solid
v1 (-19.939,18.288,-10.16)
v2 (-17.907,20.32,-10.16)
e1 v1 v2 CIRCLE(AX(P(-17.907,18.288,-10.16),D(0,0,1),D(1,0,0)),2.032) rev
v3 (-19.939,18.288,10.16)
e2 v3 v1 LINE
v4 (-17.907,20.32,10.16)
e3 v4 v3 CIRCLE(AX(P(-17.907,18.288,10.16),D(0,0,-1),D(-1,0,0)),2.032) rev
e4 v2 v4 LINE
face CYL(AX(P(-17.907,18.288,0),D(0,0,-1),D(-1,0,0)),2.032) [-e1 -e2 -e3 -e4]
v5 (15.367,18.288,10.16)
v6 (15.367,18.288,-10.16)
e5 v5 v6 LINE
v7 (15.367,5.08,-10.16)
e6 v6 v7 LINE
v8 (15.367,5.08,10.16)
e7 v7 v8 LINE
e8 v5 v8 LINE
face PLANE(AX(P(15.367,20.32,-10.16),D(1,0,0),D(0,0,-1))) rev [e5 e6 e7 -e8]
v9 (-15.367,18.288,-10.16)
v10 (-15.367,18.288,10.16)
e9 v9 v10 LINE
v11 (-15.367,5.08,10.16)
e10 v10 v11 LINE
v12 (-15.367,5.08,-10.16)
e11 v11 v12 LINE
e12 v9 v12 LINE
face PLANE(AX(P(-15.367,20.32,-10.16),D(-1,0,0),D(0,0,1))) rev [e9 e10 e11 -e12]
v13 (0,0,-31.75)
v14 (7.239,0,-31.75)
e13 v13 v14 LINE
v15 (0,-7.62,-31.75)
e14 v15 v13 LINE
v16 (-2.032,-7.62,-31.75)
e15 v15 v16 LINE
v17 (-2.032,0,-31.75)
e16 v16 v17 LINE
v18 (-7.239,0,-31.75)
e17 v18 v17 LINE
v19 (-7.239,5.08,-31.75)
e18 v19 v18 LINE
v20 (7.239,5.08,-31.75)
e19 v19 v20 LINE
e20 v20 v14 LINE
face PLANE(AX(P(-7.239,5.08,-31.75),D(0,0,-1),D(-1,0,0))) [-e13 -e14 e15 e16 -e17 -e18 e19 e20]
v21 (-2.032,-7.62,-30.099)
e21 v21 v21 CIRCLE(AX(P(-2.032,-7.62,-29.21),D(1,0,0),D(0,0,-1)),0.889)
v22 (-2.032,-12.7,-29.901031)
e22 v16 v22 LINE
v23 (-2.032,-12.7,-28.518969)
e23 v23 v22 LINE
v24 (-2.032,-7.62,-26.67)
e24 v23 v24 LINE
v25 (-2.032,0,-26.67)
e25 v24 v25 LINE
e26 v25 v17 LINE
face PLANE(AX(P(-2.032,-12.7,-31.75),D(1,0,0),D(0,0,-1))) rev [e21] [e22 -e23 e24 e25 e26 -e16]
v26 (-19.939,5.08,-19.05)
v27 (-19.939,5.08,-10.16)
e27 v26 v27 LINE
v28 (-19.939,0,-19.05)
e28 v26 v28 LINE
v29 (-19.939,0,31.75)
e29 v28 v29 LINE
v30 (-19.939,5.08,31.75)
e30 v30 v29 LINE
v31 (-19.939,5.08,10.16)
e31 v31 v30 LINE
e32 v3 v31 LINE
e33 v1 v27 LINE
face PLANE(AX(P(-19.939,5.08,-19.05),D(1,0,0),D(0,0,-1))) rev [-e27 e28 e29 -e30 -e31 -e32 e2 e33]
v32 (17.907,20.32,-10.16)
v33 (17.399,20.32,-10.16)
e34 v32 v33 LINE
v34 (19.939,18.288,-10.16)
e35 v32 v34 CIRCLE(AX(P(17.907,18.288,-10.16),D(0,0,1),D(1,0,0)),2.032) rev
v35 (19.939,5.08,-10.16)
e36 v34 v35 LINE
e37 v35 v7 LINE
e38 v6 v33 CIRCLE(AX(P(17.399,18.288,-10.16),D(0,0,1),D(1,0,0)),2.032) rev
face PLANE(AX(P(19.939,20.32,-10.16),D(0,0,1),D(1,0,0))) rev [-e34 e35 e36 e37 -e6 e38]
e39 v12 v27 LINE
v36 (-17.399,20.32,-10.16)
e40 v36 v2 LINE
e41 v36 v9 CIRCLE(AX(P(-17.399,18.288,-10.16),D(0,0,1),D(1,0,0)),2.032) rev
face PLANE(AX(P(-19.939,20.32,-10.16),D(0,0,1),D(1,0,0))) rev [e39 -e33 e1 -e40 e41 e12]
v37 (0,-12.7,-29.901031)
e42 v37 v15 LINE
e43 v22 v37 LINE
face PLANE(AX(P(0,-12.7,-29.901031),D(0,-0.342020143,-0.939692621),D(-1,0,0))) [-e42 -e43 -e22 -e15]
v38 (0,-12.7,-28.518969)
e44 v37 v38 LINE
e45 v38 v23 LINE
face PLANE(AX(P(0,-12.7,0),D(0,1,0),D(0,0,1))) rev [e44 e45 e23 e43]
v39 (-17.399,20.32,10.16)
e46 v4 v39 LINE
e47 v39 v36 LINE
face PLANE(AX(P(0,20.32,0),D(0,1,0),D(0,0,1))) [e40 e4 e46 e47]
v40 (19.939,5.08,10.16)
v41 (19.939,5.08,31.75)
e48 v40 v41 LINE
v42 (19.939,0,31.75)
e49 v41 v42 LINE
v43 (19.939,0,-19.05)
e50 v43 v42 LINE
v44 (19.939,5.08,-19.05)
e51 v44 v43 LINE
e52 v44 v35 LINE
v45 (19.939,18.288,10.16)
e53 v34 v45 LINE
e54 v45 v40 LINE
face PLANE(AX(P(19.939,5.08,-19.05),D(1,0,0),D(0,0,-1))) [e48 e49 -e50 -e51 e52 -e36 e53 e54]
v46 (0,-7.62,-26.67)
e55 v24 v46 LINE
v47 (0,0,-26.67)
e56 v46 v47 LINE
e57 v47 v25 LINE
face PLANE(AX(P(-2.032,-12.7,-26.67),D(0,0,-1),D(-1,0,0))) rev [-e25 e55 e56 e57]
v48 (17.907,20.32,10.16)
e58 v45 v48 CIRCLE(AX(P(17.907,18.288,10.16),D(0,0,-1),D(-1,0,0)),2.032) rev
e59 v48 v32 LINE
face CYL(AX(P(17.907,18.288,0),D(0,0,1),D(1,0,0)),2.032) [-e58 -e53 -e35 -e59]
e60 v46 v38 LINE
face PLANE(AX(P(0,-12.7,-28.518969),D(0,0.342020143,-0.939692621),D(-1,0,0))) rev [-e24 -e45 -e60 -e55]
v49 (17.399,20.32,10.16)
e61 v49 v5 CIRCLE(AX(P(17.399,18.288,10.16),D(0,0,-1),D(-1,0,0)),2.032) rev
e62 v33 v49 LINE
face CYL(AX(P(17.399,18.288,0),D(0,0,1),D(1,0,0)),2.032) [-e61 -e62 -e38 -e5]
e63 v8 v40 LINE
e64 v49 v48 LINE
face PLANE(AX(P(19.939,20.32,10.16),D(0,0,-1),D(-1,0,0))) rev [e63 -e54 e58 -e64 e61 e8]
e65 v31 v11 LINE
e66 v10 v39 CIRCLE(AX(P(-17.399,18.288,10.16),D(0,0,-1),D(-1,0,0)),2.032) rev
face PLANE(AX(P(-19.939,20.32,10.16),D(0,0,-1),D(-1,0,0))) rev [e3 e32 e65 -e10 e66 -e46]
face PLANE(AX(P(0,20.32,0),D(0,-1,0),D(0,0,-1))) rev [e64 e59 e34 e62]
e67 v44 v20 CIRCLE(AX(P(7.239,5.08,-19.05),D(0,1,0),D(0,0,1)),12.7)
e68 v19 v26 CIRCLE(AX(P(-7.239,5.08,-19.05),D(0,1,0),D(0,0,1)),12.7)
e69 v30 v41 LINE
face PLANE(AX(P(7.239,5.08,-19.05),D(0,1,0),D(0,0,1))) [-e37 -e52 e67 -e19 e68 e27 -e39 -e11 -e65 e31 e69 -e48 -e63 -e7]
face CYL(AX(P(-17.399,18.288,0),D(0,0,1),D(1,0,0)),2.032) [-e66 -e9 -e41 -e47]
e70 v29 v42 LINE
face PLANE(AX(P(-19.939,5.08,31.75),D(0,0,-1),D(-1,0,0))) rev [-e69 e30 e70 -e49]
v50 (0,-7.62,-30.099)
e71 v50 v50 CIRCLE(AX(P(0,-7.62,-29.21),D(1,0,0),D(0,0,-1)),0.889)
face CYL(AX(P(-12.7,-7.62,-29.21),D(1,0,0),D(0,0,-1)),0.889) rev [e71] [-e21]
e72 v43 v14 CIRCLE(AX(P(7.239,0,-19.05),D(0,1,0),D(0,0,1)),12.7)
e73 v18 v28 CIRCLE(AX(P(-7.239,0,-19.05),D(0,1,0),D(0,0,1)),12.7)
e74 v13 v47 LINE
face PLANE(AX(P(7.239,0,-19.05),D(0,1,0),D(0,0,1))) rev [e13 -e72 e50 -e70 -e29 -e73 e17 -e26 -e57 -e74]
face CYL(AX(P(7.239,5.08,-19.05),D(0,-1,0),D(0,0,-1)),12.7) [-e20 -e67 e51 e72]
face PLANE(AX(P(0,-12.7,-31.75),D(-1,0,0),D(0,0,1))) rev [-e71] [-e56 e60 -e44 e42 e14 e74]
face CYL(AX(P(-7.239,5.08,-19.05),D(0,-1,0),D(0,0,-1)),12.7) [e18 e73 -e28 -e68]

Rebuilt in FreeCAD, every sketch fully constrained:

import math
import FreeCAD as App
import Part
import Sketcher
Q = App.Units.Quantity


def edges_at(feature, points):
    """Names of the edges that pass closest to the given points."""
    edges = feature.Shape.Edges
    near = lambda p: min(range(len(edges)), key=lambda i: edges[i].distToShape(Part.Vertex(*p))[0])
    return sorted({f"Edge{near(p) + 1}" for p in points})


def add_polygon(sketch, points):
    """Adds a closed chain of lines whose ends are joined by coincident constraints."""
    first, n = sketch.GeometryCount, len(points)
    for a, b in zip(points, points[1:] + points[:1]):
        sketch.addGeometry(Part.LineSegment(App.Vector(*a, 0), App.Vector(*b, 0)), False)
    for i in range(n):
        sketch.addConstraint(Sketcher.Constraint("Coincident", first + i, 2, first + (i + 1) % n, 1))

doc = App.newDocument("Part")
body = doc.addObject("PartDesign::Body", "Body")

# Sketch on XZ plane
sketch1 = body.newObject("Sketcher::SketchObject", "Sketch")
sketch1.AttachmentSupport = (doc.getObject("XZ_Plane"), [""])
sketch1.MapMode = "FlatFace"
sketch1.addGeometry([
    Part.LineSegment(App.Vector(7, -32, 0), App.Vector(-7, -32, 0)),  # 0
    Part.ArcOfCircle(Part.Circle(App.Vector(-7, -19, 0), App.Vector(0, 0, 1), 13), math.radians(180), math.radians(270)),  # 1
    Part.LineSegment(App.Vector(-20, -19, 0), App.Vector(-20, 32, 0)),  # 2
    Part.LineSegment(App.Vector(-20, 32, 0), App.Vector(20, 32, 0)),  # 3
    Part.LineSegment(App.Vector(20, 32, 0), App.Vector(20, -19, 0)),  # 4
    Part.ArcOfCircle(Part.Circle(App.Vector(7, -19, 0), App.Vector(0, 0, 1), 13), math.radians(-90), math.radians(0)),  # 5
], False)
sketch1.addConstraint([
    Sketcher.Constraint("Tangent", 0, 2, 1, 2),
    Sketcher.Constraint("Tangent", 1, 1, 2, 1),
    Sketcher.Constraint("Coincident", 2, 2, 3, 1),
    Sketcher.Constraint("Coincident", 3, 2, 4, 1),
    Sketcher.Constraint("Tangent", 4, 2, 5, 2),
    Sketcher.Constraint("Tangent", 5, 1, 0, 1),
    Sketcher.Constraint("Horizontal", 0),
    Sketcher.Constraint("Vertical", 2),
    Sketcher.Constraint("Horizontal", 3),
    Sketcher.Constraint("Vertical", 4),
    Sketcher.Constraint("Equal", 1, 5),
    Sketcher.Constraint("Radius", 1, Q("0.5 in")),
    Sketcher.Constraint("DistanceY", 2, 1, 2, 2, Q("2 in")),
    Sketcher.Constraint("DistanceX", 0, 2, 0, 1, Q("0.57 in")),
    Sketcher.Constraint("DistanceY", 1, 3, -1, 1, Q("0.75 in")),
    Sketcher.Constraint("DistanceX", 1, 3, -1, 1, Q("0.285 in")),
])
pad1 = body.newObject("PartDesign::Pad", "Pad")
pad1.Profile = sketch1
pad1.Length = Q("0.2 in")
pad1.Reversed = True

# Sketch on XZ plane
sketch2 = body.newObject("Sketcher::SketchObject", "Sketch001")
sketch2.AttachmentSupport = (doc.getObject("XZ_Plane"), [""])
sketch2.MapMode = "FlatFace"
sketch2.AttachmentOffset = App.Placement(App.Vector(0, 0, -0.2 * 25.4), App.Rotation())
add_polygon(sketch2, [(-19.9, -10.2), (-19.9, 10.2), (-15.4, 10.2), (-15.4, -10.2)])  # lines 0-3
add_polygon(sketch2, [(15.4, -10.2), (15.4, 10.2), (19.9, 10.2), (19.9, -10.2)])  # lines 4-7
sketch2.addConstraint([
    Sketcher.Constraint("Vertical", 0),
    Sketcher.Constraint("Horizontal", 1),
    Sketcher.Constraint("Vertical", 2),
    Sketcher.Constraint("Horizontal", 3),
    Sketcher.Constraint("Vertical", 4),
    Sketcher.Constraint("Horizontal", 5),
    Sketcher.Constraint("Vertical", 6),
    Sketcher.Constraint("Horizontal", 7),
    Sketcher.Constraint("Symmetric", 2, 2, 4, 2, -1, 1),
    Sketcher.Constraint("Symmetric", 0, 2, 6, 2, -1, 1),
    Sketcher.Constraint("Horizontal", 1, 2, 4, 2),
    Sketcher.Constraint("DistanceY", 0, 1, 0, 2, Q("0.8 in")),
    Sketcher.Constraint("DistanceX", 1, 1, 1, 2, Q("0.18 in")),
    Sketcher.Constraint("DistanceX", 1, 2, 4, 2, Q("1.21 in")),
])
pad2 = body.newObject("PartDesign::Pad", "Pad001")
pad2.Profile = sketch2
pad2.Length = Q("0.6 in")
pad2.Reversed = True
doc.recompute()

fillet = body.newObject("PartDesign::Fillet", "Fillet")
fillet.Base = (pad2, edges_at(pad2, [
    (-19.939, 20.32, 0),
    (-15.367, 20.32, 0),
    (19.939, 20.32, 0),
    (15.367, 20.32, 0),
]))
fillet.Radius = Q("0.08 in")

# Sketch on XZ plane
sketch3 = body.newObject("Sketcher::SketchObject", "Sketch002")
sketch3.AttachmentSupport = (doc.getObject("XZ_Plane"), [""])
sketch3.MapMode = "FlatFace"
add_polygon(sketch3, [(-2, -26.7), (-2, -31.8), (0, -31.8), (0, -26.7)])  # lines 0-3
sketch3.addConstraint([
    Sketcher.Constraint("Vertical", 0),
    Sketcher.Constraint("Horizontal", 1),
    Sketcher.Constraint("Vertical", 2),
    Sketcher.Constraint("Horizontal", 3),
    Sketcher.Constraint("PointOnObject", 1, 2, -2),
    Sketcher.Constraint("DistanceY", 0, 2, 0, 1, Q("0.2 in")),
    Sketcher.Constraint("DistanceX", 1, 1, 1, 2, Q("0.08 in")),
    Sketcher.Constraint("DistanceY", 0, 2, -1, 1, Q("1.25 in")),
])
pad3 = body.newObject("PartDesign::Pad", "Pad002")
pad3.Profile = sketch3
pad3.Length = Q("0.5 in")

# Sketch on YZ plane
sketch4 = body.newObject("Sketcher::SketchObject", "Sketch003")
sketch4.AttachmentSupport = (doc.getObject("YZ_Plane"), [""])
sketch4.MapMode = "FlatFace"
sketch4.addGeometry(Part.Circle(App.Vector(-7.6, -29.2, 0), App.Vector(0, 0, 1), 0.9), False)
sketch4.addConstraint([
    Sketcher.Constraint("Diameter", 0, Q("0.07 in")),
    Sketcher.Constraint("DistanceX", 0, 3, -1, 1, Q("0.3 in")),
    Sketcher.Constraint("DistanceY", 0, 3, -1, 1, Q("1.15 in")),
])
pocket1 = body.newObject("PartDesign::Pocket", "Pocket")
pocket1.Profile = sketch4
pocket1.Length = Q("0.5 in")
doc.recompute()

chamfer = body.newObject("PartDesign::Chamfer", "Chamfer")
chamfer.Base = (pocket1, edges_at(pocket1, [(-1.016, -12.7, -31.75)]))
chamfer.ChamferType = "Two distances"
chamfer.Size = Q("0.2 in")
chamfer.Size2 = 1.848969
doc.recompute()

chamfer2 = body.newObject("PartDesign::Chamfer", "Chamfer001")
chamfer2.Base = (chamfer, edges_at(chamfer, [(-1.016, -12.7, -26.67)]))
chamfer2.ChamferType = "Two distances"
chamfer2.Size = Q("0.2 in")
chamfer2.Size2 = 1.848969
chamfer2.FlipDirection = True

doc.recompute()
